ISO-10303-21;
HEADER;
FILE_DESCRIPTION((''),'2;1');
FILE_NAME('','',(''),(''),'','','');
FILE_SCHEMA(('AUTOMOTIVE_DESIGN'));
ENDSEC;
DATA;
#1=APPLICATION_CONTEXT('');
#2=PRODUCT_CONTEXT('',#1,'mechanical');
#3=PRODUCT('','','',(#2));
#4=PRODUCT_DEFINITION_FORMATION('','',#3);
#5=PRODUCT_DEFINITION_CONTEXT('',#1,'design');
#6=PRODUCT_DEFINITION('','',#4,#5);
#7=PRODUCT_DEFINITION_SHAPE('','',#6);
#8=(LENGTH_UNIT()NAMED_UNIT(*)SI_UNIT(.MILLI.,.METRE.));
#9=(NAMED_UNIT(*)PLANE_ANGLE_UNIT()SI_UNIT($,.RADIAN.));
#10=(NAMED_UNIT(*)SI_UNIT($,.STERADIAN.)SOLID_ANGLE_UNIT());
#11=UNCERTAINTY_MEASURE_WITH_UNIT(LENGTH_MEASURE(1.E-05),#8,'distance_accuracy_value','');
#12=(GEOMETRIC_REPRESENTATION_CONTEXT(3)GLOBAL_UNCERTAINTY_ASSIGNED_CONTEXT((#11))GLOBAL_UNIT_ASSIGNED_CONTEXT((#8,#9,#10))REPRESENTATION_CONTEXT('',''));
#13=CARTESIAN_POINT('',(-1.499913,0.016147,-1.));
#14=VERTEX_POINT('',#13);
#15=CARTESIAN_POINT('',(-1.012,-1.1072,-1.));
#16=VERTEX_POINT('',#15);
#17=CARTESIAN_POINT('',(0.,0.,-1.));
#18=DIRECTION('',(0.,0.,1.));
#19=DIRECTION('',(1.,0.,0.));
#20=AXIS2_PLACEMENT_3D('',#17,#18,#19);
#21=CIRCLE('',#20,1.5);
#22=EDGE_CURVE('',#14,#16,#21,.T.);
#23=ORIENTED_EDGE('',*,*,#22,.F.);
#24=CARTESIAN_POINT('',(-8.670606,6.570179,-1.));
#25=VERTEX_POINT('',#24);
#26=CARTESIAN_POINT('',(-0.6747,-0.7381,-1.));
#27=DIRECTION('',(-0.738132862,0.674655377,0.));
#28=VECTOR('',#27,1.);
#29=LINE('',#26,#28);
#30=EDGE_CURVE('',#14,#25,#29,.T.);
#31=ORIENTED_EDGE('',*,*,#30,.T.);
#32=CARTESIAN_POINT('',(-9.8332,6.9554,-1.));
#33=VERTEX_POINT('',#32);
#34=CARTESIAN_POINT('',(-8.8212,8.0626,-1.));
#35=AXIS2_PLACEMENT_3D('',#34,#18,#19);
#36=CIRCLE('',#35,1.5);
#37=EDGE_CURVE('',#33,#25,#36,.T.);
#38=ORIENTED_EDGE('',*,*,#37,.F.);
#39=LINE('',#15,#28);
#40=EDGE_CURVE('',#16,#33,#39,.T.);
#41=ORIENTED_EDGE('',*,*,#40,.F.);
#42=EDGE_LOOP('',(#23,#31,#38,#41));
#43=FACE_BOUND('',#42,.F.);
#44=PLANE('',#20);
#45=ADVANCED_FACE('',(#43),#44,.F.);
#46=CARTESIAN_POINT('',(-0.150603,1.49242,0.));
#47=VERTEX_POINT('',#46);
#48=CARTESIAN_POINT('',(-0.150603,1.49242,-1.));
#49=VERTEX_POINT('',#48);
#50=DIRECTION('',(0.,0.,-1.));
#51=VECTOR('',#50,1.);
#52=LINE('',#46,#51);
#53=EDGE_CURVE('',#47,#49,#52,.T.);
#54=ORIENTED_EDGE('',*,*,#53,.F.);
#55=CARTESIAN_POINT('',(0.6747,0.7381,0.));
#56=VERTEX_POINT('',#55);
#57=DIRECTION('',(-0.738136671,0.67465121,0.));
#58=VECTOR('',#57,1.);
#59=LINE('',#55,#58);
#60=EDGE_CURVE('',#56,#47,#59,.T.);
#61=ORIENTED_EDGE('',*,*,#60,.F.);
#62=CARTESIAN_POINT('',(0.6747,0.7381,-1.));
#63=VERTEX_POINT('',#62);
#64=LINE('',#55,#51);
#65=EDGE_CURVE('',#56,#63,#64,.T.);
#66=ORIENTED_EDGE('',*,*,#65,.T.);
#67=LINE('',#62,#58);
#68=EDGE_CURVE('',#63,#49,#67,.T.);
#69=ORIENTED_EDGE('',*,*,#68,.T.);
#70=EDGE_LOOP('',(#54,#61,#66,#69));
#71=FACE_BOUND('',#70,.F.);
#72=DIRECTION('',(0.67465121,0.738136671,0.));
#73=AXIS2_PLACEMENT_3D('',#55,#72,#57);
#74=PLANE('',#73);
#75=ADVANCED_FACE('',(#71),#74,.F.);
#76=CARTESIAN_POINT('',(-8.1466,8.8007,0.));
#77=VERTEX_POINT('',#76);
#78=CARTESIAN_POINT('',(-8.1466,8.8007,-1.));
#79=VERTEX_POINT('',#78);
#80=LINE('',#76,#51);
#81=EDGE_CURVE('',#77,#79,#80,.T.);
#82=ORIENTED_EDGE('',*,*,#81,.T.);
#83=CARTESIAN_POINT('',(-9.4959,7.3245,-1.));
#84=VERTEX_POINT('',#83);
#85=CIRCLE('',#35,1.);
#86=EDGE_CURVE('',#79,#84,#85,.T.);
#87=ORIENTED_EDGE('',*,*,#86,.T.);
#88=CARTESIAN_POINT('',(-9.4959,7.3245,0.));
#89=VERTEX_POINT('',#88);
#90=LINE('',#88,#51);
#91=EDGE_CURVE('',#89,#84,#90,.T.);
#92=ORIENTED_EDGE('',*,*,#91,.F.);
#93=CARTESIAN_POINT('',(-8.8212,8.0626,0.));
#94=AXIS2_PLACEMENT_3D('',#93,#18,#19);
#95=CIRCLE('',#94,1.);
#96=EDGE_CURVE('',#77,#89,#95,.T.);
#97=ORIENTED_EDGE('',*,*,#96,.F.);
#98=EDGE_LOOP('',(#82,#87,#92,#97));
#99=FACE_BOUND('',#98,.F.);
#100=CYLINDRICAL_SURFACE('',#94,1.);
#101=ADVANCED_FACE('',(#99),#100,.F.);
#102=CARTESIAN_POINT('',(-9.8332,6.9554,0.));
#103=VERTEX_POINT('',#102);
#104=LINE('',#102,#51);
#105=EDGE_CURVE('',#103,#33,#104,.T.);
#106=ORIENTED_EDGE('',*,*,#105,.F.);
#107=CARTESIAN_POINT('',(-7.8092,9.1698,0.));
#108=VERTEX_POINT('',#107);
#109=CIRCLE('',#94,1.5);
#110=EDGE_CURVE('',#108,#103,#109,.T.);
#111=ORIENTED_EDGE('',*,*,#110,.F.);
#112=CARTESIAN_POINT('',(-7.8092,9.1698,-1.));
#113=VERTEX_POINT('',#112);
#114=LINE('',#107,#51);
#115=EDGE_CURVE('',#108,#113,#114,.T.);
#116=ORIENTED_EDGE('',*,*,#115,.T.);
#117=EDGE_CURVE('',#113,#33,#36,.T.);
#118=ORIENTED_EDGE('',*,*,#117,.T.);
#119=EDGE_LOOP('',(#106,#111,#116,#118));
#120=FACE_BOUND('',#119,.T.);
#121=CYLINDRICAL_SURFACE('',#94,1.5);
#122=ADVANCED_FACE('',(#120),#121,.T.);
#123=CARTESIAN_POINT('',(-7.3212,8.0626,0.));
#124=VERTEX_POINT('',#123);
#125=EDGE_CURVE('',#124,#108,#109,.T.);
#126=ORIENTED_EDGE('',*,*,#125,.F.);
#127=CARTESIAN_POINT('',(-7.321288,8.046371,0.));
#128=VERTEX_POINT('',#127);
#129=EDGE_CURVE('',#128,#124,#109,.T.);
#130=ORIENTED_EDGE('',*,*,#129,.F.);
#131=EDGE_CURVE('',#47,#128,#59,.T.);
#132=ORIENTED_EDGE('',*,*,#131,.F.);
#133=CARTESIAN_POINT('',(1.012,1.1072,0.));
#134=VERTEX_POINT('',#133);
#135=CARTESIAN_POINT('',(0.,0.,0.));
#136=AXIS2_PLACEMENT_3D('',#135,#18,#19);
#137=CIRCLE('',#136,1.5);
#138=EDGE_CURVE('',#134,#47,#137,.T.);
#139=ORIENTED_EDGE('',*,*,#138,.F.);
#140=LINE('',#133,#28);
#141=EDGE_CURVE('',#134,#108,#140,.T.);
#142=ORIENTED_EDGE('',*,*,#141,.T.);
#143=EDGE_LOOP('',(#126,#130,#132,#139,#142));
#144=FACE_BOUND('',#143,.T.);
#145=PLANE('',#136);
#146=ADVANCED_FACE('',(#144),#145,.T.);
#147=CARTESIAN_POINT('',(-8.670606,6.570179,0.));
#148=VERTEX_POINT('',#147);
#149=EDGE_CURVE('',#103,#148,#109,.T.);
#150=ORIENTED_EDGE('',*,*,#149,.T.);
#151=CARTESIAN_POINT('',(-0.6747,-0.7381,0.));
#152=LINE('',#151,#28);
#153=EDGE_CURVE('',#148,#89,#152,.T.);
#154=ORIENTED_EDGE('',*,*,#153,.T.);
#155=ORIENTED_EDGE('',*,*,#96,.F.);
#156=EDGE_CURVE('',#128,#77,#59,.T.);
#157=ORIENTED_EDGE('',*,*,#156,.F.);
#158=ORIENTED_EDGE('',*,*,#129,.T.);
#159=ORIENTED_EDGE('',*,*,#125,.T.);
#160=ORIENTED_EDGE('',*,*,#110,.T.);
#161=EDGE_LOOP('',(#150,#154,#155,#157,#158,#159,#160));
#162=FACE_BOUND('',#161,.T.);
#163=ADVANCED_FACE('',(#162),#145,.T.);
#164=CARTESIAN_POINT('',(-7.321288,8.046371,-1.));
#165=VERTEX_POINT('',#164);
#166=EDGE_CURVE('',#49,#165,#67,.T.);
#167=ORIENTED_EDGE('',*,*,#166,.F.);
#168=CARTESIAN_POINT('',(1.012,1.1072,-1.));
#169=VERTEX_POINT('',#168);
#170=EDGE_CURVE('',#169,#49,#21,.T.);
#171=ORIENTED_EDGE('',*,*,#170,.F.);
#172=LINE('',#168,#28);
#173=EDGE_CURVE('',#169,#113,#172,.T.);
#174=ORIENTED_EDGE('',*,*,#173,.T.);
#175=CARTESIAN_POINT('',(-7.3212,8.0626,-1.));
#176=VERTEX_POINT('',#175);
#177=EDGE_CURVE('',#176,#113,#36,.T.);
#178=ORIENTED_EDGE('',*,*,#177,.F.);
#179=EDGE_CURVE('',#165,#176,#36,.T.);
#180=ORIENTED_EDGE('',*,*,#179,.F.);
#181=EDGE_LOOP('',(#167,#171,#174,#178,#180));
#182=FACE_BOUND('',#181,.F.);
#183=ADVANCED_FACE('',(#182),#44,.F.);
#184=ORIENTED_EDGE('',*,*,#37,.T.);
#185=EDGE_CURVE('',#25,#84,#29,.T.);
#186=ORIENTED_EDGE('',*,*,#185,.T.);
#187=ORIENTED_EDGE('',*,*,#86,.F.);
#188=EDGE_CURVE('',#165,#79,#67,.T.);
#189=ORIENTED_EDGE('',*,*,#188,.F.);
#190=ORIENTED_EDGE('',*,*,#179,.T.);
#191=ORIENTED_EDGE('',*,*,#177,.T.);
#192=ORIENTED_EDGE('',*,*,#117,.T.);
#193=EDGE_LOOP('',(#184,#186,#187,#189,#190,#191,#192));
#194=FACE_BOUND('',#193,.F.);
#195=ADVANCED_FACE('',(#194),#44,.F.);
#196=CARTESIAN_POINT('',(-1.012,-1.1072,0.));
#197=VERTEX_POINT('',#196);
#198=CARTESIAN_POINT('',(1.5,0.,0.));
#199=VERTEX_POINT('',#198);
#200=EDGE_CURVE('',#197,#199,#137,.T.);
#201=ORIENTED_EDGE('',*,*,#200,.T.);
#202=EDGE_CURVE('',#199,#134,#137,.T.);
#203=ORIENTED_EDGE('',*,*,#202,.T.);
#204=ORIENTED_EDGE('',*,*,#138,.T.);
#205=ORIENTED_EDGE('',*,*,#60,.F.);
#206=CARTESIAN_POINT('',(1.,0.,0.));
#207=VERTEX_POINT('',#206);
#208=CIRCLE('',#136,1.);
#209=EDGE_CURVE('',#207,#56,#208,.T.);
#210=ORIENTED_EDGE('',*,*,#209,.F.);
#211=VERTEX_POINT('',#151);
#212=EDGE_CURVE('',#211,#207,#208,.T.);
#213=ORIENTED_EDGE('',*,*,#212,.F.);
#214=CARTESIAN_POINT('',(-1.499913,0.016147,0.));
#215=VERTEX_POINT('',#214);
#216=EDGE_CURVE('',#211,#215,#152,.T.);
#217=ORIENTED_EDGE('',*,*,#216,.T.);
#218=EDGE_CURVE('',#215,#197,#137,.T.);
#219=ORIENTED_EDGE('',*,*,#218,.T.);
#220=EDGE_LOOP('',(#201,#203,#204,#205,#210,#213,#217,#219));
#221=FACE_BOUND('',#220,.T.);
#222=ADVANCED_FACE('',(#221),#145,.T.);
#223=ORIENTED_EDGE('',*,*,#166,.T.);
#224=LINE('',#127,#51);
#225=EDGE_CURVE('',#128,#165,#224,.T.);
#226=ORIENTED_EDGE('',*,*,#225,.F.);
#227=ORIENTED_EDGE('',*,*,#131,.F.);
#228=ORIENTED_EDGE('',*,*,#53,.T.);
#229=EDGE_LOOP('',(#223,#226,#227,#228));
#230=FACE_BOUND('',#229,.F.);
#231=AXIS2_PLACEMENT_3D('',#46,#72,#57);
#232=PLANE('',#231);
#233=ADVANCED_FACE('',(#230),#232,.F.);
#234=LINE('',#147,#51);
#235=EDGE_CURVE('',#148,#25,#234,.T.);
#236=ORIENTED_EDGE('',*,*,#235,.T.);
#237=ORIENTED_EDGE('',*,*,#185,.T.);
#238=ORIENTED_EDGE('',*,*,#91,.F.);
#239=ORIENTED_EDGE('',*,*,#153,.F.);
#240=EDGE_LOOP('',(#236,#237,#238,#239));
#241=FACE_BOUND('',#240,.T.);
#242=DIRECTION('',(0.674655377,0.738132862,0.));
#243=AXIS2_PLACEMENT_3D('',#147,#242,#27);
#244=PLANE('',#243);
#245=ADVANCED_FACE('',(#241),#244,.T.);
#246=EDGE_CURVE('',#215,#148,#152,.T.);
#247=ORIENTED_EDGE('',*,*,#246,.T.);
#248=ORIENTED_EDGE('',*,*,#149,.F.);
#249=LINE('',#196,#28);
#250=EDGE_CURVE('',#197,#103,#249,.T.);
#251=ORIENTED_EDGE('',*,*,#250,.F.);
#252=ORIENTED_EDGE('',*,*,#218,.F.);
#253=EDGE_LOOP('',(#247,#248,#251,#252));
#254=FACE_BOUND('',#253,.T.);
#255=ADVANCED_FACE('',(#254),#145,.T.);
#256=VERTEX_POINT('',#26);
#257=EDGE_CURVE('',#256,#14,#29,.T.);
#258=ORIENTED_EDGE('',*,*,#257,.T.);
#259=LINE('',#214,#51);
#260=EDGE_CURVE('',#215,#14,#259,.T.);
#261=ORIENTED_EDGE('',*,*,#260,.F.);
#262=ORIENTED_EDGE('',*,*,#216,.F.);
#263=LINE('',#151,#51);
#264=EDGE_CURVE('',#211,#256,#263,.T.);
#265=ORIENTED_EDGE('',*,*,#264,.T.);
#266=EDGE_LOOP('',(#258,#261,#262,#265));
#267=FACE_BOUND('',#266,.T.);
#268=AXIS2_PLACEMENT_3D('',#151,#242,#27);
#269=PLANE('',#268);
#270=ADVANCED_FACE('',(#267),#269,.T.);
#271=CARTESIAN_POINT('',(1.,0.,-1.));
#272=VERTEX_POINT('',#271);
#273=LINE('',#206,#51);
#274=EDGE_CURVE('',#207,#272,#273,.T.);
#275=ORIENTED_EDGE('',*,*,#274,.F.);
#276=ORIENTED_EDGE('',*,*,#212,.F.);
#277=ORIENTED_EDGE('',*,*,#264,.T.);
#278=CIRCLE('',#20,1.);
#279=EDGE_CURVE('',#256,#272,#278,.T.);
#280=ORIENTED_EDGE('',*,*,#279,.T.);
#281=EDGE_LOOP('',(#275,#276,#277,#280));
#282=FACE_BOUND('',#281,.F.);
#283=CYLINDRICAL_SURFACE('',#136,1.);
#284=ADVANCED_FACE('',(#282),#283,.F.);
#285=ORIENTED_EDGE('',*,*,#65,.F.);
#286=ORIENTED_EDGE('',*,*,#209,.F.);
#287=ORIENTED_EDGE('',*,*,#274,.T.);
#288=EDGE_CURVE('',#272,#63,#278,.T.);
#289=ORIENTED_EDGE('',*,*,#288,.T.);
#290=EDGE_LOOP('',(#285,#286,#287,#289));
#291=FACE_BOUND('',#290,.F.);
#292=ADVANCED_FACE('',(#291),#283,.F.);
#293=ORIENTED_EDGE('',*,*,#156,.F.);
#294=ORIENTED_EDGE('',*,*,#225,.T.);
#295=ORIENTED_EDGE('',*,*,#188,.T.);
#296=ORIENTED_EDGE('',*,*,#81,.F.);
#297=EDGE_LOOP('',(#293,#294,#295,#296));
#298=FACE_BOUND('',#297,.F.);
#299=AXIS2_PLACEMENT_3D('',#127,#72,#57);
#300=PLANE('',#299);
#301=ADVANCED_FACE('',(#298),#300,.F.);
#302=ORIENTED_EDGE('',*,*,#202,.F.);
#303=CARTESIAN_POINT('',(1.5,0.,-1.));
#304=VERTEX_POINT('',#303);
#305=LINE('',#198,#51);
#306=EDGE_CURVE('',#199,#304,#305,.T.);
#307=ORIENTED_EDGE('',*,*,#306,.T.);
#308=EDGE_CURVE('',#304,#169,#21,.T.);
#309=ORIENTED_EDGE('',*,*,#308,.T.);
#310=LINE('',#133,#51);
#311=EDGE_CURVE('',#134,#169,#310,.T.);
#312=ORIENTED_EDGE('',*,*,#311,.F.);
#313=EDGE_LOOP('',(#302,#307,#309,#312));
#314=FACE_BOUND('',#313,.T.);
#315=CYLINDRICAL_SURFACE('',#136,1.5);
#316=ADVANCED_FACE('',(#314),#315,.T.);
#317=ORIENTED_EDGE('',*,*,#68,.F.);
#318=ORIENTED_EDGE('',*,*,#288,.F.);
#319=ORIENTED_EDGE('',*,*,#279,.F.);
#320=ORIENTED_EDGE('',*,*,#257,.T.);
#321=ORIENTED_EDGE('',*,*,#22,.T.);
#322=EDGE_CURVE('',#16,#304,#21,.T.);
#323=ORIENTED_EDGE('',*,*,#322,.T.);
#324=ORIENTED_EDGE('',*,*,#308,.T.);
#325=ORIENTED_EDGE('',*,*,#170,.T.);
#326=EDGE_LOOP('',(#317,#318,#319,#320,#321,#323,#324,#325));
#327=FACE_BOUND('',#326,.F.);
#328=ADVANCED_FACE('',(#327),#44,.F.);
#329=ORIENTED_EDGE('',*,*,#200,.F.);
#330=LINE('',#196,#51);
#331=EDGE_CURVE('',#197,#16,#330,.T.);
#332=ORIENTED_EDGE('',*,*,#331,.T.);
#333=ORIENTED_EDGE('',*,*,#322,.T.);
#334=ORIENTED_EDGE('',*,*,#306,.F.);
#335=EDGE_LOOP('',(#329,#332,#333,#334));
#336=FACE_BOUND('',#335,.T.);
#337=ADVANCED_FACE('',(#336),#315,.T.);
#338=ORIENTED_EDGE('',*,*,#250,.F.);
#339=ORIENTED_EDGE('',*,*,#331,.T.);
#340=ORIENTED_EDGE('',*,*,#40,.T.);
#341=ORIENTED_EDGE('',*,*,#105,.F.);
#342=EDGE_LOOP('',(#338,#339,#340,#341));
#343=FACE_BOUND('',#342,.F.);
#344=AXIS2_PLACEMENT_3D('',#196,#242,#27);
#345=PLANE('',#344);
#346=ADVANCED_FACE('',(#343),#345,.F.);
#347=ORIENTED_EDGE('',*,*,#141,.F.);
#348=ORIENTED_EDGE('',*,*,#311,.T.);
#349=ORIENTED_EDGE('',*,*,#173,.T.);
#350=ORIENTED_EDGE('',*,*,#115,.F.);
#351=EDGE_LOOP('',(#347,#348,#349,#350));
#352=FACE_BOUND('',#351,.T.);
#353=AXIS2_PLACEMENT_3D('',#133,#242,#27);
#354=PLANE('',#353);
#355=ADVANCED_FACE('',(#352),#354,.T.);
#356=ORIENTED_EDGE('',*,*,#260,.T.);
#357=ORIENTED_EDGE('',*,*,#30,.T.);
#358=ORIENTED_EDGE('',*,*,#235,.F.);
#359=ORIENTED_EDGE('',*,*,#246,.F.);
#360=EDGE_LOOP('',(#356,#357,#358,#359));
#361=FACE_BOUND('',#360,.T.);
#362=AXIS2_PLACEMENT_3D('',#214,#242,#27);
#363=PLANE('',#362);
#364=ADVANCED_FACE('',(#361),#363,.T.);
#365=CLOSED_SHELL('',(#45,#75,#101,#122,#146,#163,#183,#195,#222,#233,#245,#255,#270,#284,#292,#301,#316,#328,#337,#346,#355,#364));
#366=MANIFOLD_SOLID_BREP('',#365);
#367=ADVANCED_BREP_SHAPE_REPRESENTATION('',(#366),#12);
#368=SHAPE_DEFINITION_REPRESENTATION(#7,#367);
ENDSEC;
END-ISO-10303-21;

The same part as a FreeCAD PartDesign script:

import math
import FreeCAD as App
import Part
import Sketcher

doc = App.newDocument("Part")
params = doc.addObject("Spreadsheet::Sheet", "Params")
for row, (alias, value) in enumerate([
    ("sketch1_radius", "1 mm"),
    ("sketch1_radius2", "1.5 mm"),
    ("pad1_length", "1 mm"),
], start=1):
    params.set(f"A{row}", alias)
    params.set(f"B{row}", "=" + value)
    params.setAlias(f"B{row}", alias)

body = doc.addObject("PartDesign::Body", "Body")

# Sketch on XY plane
sketch1 = doc.addObject("Sketcher::SketchObject", "Sketch")
body.addObject(sketch1)
sketch1.AttachmentSupport = (doc.XY_Plane, [""])
sketch1.MapMode = "FlatFace"
sketch1.addGeometry([
    Part.LineSegment(App.Vector(1.012, 1.1072, 0), App.Vector(-7.8092, 9.1698, 0)),  # 0
    Part.ArcOfCircle(Part.Circle(App.Vector(-8.8212, 8.0626, 0), App.Vector(0, 0, 1), 1.5), math.radians(47.572147), math.radians(227.572147)),  # 1
    Part.LineSegment(App.Vector(-9.8332, 6.9554, 0), App.Vector(-1.012, -1.1072, 0)),  # 2
    Part.ArcOfCircle(Part.Circle(App.Vector(0, 0, 0), App.Vector(0, 0, 1), 1.5), math.radians(-132.427853), math.radians(47.572147)),  # 3
    Part.ArcOfCircle(Part.Circle(App.Vector(0, 0, 0), App.Vector(0, 0, 1), 1), math.radians(-132.430551), math.radians(47.569449)),  # 4
    Part.LineSegment(App.Vector(-0.6747, -0.7381, 0), App.Vector(-9.4959, 7.3245, 0)),  # 5
    Part.ArcOfCircle(Part.Circle(App.Vector(-8.8212, 8.0626, 0), App.Vector(0, 0, 1), 1), math.radians(47.573678), math.radians(227.569449)),  # 6
    Part.LineSegment(App.Vector(-8.1466, 8.8007, 0), App.Vector(0.6747, 0.7381, 0)),  # 7
], False)
sketch1.addConstraint([
    Sketcher.Constraint("Tangent", 0, 2, 1, 1),
    Sketcher.Constraint("Tangent", 1, 2, 2, 1),
    Sketcher.Constraint("Tangent", 2, 2, 3, 1),
    Sketcher.Constraint("Tangent", 3, 2, 0, 1),
    Sketcher.Constraint("Tangent", 4, 1, 5, 1),
    Sketcher.Constraint("Tangent", 5, 2, 6, 2),
    Sketcher.Constraint("Tangent", 6, 1, 7, 1),
    Sketcher.Constraint("Tangent", 7, 2, 4, 2),
    Sketcher.Constraint("Coincident", 3, 3, -1, 1),
    Sketcher.Constraint("Coincident", 4, 3, -1, 1),
    Sketcher.Constraint("Coincident", 6, 3, 1, 3),
    Sketcher.Constraint("Equal", 1, 3),
    Sketcher.Constraint("Equal", 4, 6),
    Sketcher.Constraint("Radius", 4, 1.0),
    Sketcher.Constraint("Radius", 1, 1.5),
    Sketcher.Constraint("DistanceX", 2, 2, -1, 1, 1.012),
    Sketcher.Constraint("DistanceX", 5, 2, -1, 1, 9.496),
])
sketch1.setExpression("Constraints[13]", "Params.sketch1_radius")
sketch1.setExpression("Constraints[14]", "Params.sketch1_radius2")
pad1 = doc.addObject("PartDesign::Pad", "Pad")
body.addObject(pad1)
pad1.Profile = sketch1
pad1.setExpression("Length", "Params.pad1_length")
pad1.Reversed = True

doc.recompute()
